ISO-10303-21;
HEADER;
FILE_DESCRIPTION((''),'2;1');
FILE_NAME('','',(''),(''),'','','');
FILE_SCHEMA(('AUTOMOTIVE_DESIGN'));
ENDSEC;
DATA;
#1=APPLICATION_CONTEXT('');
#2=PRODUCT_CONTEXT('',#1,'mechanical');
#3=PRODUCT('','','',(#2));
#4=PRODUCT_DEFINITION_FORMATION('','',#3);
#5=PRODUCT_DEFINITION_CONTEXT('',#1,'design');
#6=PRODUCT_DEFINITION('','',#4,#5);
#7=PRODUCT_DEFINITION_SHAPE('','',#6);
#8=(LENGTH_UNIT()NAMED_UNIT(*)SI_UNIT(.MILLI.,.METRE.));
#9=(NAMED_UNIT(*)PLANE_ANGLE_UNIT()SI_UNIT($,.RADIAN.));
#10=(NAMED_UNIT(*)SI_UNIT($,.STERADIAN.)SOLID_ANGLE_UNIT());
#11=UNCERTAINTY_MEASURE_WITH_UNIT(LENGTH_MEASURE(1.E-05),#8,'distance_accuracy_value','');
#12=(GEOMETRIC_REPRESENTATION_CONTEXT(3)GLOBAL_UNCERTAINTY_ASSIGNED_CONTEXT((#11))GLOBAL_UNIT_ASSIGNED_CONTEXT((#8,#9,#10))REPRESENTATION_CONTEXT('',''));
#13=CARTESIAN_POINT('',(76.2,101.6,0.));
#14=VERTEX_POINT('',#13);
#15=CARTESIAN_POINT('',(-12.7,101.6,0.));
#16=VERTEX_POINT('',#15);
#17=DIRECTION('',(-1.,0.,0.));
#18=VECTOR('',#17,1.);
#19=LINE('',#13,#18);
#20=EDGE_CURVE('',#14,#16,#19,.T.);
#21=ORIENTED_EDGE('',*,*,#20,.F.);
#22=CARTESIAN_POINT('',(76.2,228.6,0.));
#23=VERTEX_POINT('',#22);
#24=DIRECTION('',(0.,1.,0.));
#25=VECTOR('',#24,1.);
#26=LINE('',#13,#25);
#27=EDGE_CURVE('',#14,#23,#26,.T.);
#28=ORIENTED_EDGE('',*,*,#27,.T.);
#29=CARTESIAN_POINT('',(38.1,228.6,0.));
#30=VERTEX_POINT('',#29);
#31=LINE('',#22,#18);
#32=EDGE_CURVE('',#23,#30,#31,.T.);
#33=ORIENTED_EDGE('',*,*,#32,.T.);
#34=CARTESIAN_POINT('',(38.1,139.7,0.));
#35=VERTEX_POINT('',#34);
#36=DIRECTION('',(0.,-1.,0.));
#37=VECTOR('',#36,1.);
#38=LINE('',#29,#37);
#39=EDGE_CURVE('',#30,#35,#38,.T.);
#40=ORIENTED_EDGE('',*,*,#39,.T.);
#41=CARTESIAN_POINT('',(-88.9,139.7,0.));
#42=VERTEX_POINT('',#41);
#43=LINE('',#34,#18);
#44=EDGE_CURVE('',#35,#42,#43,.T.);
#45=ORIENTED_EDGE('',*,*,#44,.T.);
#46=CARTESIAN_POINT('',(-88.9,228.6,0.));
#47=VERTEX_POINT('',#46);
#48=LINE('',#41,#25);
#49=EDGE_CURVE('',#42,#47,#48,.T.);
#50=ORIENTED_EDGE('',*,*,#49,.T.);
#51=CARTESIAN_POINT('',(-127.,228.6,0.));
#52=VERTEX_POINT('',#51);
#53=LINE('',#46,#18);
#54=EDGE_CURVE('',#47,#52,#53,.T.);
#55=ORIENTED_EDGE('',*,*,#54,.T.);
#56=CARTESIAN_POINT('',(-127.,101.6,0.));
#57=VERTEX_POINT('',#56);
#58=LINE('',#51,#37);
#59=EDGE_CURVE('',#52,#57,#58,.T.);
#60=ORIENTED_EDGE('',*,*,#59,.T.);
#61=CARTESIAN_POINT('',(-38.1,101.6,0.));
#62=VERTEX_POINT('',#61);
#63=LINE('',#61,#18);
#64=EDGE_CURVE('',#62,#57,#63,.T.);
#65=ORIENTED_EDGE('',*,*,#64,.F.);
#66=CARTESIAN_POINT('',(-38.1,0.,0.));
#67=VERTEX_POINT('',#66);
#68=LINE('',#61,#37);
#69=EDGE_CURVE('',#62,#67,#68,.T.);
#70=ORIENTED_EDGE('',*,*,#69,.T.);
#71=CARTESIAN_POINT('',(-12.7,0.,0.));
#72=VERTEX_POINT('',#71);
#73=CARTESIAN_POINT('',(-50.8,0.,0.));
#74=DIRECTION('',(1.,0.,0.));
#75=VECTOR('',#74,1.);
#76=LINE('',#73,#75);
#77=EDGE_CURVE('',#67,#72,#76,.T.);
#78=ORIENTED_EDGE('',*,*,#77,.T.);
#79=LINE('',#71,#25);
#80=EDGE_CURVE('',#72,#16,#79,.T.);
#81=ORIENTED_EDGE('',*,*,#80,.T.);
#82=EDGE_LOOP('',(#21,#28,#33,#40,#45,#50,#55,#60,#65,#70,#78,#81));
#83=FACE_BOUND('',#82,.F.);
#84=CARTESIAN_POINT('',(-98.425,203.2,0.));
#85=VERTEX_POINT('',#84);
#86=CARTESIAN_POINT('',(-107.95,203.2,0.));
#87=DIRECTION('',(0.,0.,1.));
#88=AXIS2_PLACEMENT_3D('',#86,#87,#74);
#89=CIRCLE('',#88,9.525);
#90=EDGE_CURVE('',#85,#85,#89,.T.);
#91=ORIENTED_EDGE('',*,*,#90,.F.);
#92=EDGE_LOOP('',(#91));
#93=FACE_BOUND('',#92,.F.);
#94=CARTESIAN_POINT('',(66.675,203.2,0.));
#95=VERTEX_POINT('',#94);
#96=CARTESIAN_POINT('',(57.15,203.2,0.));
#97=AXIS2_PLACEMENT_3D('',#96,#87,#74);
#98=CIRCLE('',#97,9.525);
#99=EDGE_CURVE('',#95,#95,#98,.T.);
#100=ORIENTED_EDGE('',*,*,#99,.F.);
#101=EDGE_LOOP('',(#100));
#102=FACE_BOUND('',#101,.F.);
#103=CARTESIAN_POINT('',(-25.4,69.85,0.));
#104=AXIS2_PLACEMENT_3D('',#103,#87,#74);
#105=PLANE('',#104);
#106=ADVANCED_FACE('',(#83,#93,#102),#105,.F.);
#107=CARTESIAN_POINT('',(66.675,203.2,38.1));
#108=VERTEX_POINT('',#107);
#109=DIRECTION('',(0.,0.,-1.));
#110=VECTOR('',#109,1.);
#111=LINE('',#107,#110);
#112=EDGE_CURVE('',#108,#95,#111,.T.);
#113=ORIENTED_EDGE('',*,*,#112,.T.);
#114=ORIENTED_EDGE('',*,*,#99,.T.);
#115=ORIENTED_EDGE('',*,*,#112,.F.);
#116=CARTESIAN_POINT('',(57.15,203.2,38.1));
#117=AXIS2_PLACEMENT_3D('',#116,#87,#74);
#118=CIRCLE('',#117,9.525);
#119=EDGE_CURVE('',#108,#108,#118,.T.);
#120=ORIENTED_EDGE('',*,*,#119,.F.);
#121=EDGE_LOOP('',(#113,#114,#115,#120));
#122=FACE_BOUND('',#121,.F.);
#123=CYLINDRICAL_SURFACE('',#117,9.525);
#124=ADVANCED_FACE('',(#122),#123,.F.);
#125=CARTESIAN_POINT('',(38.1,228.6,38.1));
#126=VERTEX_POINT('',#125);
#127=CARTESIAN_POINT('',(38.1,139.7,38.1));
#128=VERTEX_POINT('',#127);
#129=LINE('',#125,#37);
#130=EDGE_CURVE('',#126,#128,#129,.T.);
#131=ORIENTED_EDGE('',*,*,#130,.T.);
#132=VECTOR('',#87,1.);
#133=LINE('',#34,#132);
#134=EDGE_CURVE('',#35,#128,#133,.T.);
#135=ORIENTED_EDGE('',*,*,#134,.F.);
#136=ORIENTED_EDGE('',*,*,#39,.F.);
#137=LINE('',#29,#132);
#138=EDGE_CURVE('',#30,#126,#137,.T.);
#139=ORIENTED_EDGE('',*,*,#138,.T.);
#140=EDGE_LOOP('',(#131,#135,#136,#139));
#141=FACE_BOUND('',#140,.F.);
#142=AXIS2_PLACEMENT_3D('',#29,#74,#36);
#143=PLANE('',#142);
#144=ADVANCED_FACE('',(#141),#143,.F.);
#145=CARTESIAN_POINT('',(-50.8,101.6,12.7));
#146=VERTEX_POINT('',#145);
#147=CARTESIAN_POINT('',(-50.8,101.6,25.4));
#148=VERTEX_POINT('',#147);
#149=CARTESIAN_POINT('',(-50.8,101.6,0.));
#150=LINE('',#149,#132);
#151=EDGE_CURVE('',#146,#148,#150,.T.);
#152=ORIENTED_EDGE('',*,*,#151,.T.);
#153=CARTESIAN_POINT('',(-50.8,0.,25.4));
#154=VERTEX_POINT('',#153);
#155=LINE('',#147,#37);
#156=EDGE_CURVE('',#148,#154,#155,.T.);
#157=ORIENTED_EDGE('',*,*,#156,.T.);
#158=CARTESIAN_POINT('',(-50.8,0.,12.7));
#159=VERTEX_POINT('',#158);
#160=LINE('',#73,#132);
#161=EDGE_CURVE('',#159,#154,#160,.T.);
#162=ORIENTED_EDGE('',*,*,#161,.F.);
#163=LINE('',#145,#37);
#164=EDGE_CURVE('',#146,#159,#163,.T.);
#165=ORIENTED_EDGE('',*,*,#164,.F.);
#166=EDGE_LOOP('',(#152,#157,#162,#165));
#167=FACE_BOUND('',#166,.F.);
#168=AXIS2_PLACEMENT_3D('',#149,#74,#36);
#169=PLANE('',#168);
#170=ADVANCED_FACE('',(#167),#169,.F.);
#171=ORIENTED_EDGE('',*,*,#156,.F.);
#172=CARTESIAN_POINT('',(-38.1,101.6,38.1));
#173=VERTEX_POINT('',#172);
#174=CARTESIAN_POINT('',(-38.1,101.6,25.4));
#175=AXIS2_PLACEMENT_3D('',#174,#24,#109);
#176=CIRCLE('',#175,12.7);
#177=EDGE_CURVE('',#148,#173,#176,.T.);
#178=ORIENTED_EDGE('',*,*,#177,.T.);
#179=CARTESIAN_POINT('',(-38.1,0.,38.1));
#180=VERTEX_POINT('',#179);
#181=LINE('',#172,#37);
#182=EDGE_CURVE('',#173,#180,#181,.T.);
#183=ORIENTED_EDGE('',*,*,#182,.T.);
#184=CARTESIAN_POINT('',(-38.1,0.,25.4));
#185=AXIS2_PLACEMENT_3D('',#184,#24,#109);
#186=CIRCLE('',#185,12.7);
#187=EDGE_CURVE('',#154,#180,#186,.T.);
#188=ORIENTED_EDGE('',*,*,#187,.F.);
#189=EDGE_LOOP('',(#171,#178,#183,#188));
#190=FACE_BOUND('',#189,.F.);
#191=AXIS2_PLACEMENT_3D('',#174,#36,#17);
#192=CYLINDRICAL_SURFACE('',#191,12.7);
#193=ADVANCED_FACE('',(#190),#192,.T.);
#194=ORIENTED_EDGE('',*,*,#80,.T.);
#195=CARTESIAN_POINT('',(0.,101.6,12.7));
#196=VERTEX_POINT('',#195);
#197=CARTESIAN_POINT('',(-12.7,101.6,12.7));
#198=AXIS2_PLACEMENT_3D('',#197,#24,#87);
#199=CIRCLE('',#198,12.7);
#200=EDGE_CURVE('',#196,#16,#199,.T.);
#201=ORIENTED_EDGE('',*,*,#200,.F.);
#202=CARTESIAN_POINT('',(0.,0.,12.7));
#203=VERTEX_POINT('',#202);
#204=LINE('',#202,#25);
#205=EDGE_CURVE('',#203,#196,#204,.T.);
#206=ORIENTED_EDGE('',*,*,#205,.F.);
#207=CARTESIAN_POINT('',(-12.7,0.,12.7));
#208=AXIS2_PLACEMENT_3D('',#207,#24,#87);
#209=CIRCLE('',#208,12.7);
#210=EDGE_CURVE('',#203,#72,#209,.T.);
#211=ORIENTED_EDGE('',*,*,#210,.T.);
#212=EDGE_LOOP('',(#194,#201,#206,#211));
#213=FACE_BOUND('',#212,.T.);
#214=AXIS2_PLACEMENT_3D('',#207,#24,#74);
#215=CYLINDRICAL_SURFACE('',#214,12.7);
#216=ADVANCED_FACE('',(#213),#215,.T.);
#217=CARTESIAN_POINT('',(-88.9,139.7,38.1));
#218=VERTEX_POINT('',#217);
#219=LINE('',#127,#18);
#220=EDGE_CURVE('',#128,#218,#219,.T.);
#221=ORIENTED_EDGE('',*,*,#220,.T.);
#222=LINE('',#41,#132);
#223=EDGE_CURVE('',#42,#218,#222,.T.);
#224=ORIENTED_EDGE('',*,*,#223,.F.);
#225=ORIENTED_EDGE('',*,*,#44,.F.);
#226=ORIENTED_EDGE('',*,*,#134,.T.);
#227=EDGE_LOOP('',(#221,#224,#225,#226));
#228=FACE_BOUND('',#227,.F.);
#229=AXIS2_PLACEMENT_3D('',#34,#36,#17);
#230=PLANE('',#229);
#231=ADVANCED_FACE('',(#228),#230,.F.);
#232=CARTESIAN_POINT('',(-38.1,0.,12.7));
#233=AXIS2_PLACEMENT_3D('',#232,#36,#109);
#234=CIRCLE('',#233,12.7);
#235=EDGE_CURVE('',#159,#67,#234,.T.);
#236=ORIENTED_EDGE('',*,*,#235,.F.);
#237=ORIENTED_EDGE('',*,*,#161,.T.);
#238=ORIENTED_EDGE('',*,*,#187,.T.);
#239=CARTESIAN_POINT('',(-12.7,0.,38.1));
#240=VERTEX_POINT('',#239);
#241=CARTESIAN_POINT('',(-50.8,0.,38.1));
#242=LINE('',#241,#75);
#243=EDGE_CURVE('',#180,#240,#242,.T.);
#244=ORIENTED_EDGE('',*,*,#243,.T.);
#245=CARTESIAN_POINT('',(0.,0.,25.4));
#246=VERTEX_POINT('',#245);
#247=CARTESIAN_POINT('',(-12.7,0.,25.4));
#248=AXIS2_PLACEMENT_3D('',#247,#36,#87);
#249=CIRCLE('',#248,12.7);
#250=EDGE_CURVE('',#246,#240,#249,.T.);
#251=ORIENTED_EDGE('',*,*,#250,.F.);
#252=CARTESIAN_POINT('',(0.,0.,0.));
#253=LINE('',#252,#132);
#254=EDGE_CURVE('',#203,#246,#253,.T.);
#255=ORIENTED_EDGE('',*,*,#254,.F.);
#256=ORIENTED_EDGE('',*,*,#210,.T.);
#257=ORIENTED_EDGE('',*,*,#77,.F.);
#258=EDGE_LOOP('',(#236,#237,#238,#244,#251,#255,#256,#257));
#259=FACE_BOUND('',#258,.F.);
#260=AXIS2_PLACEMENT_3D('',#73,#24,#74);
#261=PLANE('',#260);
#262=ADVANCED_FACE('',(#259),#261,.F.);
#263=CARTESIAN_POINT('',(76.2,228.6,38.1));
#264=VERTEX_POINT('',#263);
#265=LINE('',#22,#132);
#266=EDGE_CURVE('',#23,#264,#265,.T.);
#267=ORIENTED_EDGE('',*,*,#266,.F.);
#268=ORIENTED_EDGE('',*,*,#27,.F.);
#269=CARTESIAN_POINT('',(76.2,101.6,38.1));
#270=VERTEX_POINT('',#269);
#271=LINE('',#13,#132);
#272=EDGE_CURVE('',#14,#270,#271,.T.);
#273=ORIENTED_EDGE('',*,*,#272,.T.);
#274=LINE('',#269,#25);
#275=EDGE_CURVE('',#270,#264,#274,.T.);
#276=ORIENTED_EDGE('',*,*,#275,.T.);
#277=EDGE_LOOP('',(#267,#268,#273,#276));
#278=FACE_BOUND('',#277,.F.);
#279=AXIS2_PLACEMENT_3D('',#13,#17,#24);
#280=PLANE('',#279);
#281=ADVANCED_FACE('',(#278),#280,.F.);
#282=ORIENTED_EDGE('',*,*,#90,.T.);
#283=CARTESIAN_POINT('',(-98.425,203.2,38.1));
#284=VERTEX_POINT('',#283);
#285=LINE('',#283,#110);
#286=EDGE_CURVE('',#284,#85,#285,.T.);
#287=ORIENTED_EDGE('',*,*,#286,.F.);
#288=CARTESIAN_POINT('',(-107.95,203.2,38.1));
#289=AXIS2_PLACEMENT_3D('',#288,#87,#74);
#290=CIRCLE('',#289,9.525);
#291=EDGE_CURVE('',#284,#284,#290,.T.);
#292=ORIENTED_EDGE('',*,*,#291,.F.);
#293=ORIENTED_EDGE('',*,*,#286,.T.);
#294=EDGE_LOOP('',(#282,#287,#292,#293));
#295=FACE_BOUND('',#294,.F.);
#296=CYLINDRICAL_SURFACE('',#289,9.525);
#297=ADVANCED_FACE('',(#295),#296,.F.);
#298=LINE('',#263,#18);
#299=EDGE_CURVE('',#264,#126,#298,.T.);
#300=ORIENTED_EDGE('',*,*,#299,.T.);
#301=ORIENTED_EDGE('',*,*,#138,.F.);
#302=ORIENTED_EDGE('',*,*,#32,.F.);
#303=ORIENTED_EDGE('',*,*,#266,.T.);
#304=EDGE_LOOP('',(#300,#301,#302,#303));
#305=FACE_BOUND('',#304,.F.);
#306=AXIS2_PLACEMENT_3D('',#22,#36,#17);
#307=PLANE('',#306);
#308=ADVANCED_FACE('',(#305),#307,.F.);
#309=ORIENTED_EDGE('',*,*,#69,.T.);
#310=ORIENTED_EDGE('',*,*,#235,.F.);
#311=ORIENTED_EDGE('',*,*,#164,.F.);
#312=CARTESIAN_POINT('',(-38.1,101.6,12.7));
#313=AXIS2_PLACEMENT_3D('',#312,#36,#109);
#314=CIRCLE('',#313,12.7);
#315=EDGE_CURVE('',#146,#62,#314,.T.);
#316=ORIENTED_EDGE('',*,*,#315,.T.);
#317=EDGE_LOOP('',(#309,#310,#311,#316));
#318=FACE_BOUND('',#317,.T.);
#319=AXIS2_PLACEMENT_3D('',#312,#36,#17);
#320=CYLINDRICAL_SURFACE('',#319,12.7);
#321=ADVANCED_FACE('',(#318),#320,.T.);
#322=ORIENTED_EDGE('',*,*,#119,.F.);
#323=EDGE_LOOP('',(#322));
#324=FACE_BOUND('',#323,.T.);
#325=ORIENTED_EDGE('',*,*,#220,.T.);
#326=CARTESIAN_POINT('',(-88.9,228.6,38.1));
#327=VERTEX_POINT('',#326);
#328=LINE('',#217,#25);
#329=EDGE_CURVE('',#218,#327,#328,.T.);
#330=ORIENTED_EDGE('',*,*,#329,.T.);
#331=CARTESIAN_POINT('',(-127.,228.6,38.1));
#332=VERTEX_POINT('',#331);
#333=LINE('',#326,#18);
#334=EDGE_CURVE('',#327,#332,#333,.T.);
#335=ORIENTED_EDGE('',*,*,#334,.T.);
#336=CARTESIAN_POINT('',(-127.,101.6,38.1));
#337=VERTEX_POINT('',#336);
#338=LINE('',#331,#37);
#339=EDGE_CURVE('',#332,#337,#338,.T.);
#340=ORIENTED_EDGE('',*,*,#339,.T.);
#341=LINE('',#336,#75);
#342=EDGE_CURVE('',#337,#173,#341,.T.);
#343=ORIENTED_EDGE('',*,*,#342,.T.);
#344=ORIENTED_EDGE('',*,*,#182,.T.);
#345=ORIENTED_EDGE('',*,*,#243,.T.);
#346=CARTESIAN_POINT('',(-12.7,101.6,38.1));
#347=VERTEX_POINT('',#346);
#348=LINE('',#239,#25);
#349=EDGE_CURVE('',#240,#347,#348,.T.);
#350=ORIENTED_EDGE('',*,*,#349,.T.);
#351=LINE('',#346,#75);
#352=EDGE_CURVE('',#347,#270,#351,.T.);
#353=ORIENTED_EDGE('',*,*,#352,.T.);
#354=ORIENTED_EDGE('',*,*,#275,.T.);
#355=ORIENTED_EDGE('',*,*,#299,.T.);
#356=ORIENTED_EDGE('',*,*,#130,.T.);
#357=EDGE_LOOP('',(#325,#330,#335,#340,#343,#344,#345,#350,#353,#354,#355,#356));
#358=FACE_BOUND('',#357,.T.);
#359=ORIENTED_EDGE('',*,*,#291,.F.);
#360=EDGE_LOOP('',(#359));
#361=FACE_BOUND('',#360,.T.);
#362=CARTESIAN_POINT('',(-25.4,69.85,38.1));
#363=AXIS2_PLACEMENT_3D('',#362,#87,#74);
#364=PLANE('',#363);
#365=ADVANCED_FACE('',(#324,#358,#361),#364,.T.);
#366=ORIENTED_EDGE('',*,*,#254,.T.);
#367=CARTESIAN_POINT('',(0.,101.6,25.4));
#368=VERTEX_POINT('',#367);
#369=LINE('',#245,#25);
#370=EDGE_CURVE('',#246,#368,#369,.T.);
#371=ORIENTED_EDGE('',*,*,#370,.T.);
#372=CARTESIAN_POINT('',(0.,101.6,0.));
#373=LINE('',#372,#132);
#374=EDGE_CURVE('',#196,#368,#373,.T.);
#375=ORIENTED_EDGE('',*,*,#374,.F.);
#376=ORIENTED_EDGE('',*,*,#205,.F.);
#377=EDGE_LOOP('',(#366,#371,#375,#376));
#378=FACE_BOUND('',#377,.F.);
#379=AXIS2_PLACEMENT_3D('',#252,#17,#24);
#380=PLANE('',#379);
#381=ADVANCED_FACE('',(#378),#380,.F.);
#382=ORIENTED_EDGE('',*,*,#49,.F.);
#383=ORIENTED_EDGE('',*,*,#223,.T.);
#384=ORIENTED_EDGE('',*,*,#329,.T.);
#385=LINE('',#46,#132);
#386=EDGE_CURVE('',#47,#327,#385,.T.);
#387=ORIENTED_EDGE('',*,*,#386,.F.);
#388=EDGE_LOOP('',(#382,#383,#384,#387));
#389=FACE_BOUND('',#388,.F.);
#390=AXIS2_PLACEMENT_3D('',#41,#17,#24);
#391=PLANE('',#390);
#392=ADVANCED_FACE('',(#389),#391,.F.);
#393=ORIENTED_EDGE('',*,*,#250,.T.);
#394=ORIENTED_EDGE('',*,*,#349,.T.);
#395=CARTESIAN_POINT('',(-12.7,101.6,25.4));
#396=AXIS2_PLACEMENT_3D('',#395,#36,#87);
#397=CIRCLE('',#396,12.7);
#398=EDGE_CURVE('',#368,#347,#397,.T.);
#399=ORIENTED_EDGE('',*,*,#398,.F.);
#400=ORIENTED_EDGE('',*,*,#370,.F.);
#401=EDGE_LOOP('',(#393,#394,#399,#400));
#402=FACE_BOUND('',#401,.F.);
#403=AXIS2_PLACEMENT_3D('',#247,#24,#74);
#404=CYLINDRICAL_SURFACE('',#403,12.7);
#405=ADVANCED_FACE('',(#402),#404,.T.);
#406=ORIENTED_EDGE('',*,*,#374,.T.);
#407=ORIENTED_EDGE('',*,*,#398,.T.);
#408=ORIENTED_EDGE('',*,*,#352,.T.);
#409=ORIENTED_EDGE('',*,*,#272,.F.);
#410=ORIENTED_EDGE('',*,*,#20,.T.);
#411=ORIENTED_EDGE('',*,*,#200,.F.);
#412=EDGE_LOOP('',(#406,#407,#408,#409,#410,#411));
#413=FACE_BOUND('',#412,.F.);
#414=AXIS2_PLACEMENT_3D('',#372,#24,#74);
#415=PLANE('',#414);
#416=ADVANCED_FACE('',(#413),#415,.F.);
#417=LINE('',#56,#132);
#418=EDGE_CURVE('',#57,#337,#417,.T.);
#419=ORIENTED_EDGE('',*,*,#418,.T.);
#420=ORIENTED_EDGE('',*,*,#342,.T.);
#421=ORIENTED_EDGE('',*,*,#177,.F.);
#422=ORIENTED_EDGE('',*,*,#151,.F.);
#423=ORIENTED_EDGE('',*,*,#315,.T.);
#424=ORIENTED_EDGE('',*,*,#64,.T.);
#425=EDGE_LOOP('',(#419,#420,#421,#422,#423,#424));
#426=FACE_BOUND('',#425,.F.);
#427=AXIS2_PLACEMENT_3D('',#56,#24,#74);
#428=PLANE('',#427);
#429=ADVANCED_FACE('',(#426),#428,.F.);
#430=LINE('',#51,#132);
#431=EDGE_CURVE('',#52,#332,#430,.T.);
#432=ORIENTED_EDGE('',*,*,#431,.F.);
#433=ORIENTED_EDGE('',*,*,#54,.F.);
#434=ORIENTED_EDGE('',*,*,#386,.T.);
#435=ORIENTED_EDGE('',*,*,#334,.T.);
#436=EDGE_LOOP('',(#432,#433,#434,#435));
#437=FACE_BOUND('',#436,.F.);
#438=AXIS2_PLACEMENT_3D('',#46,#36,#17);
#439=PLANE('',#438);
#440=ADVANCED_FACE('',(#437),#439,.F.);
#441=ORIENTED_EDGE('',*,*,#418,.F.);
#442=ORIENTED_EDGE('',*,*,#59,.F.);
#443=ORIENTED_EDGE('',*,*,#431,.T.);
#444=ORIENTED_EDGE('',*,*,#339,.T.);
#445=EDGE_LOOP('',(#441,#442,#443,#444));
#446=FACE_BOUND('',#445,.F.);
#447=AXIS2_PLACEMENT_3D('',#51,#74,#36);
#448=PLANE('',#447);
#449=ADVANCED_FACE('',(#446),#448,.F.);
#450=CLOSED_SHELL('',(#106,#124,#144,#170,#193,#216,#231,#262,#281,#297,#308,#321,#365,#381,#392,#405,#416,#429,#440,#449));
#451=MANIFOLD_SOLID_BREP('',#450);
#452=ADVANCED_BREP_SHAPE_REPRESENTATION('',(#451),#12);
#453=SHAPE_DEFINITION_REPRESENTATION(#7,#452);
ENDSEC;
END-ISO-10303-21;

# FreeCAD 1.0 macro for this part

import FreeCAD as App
import Part
import Sketcher
Q = App.Units.Quantity


def edges_at(feature, points):
    """Names of the edges that pass closest to the given points."""
    edges = feature.Shape.Edges
    near = lambda p: min(range(len(edges)), key=lambda i: edges[i].distToShape(Part.Vertex(*p))[0])
    return sorted({f"Edge{near(p) + 1}" for p in points})


def add_polygon(sketch, points):
    """Adds a closed chain of lines whose ends are joined by coincident constraints."""
    first, n = sketch.GeometryCount, len(points)
    for a, b in zip(points, points[1:] + points[:1]):
        sketch.addGeometry(Part.LineSegment(App.Vector(*a, 0), App.Vector(*b, 0)), False)
    for i in range(n):
        sketch.addConstraint(Sketcher.Constraint("Coincident", first + i, 2, first + (i + 1) % n, 1))

doc = App.newDocument("Part")
body = doc.addObject("PartDesign::Body", "Body")

sketch1 = body.newObject("Sketcher::SketchObject", "Sketch")
sketch1.AttachmentSupport = (doc.getObject("XY_Plane"), [""])
sketch1.MapMode = "FlatFace"
add_polygon(sketch1, [(-51, 0), (0, 0), (0, 102), (76, 102), (76, 229), (38, 229), (38, 140), (-89, 140), (-89, 229), (-127, 229), (-127, 102), (-51, 102)])
sketch1.addConstraint(Sketcher.Constraint("Horizontal", 0))
sketch1.addConstraint(Sketcher.Constraint("Vertical", 1))
sketch1.addConstraint(Sketcher.Constraint("Horizontal", 2))
sketch1.addConstraint(Sketcher.Constraint("Vertical", 3))
sketch1.addConstraint(Sketcher.Constraint("Horizontal", 4))
sketch1.addConstraint(Sketcher.Constraint("Vertical", 5))
sketch1.addConstraint(Sketcher.Constraint("Horizontal", 6))
sketch1.addConstraint(Sketcher.Constraint("Vertical", 7))
sketch1.addConstraint(Sketcher.Constraint("Horizontal", 8))
sketch1.addConstraint(Sketcher.Constraint("Vertical", 9))
sketch1.addConstraint(Sketcher.Constraint("Horizontal", 10))
sketch1.addConstraint(Sketcher.Constraint("Vertical", 11))
sketch1.addConstraint(Sketcher.Constraint("Coincident", 0, 2, -1, 1))
sketch1.addConstraint(Sketcher.Constraint("Horizontal", 4, 2, 7, 2))
sketch1.addConstraint(Sketcher.Constraint("Horizontal", 2, 2, 9, 2))
sketch1.addConstraint(Sketcher.Constraint("Equal", 4, 8))
sketch1.addConstraint(Sketcher.Constraint("Equal", 2, 10))
sketch1.addConstraint(Sketcher.Constraint("Equal", 6, 3))
sketch1.addConstraint(Sketcher.Constraint("DistanceX", 0, 1, 0, 2, Q("2 in")))
sketch1.addConstraint(Sketcher.Constraint("DistanceX", 2, 1, 2, 2, Q("3 in")))
sketch1.addConstraint(Sketcher.Constraint("DistanceX", 6, 2, 6, 1, Q("5 in")))
sketch1.addConstraint(Sketcher.Constraint("DistanceY", 1, 1, 1, 2, Q("4 in")))
sketch1.addConstraint(Sketcher.Constraint("DistanceY", 5, 2, 5, 1, Q("3.5 in")))
pad1 = body.newObject("PartDesign::Pad", "Pad")
pad1.Profile = sketch1
pad1.Length = Q("1.5 in")
doc.recompute()

fillet = body.newObject("PartDesign::Fillet", "Fillet")
fillet.Base = (pad1, edges_at(pad1, [
    (0, 50.8, 38.1),
    (-50.8, 50.8, 38.1),
    (-50.8, 50.8, 0),
    (0, 50.8, 0),
]))
fillet.Radius = Q("0.5 in")

sketch2 = body.newObject("Sketcher::SketchObject", "Sketch001")
sketch2.AttachmentSupport = (doc.getObject("XY_Plane"), [""])
sketch2.MapMode = "FlatFace"
sketch2.AttachmentOffset = App.Placement(App.Vector(0, 0, 1.5 * 25.4), App.Rotation())
sketch2.addGeometry(Part.Circle(App.Vector(-108, 203, 0), App.Vector(0, 0, 1), 10), False)
sketch2.addGeometry(Part.Circle(App.Vector(57, 203, 0), App.Vector(0, 0, 1), 10), False)
sketch2.addConstraint(Sketcher.Constraint("Equal", 0, 1))
sketch2.addConstraint(Sketcher.Constraint("Horizontal", 0, 3, 1, 3))
sketch2.addConstraint(Sketcher.Constraint("Diameter", 0, Q("0.75 in")))
sketch2.addConstraint(Sketcher.Constraint("DistanceY", -1, 1, 0, 3, Q("8 in")))
sketch2.addConstraint(Sketcher.Constraint("DistanceX", 0, 3, 1, 3, Q("6.5 in")))
sketch2.addConstraint(Sketcher.Constraint("DistanceX", 0, 3, -1, 1, Q("4.25 in")))
pocket1 = body.newObject("PartDesign::Pocket", "Pocket")
pocket1.Profile = sketch2
pocket1.Type = "ThroughAll"

doc.recompute()
